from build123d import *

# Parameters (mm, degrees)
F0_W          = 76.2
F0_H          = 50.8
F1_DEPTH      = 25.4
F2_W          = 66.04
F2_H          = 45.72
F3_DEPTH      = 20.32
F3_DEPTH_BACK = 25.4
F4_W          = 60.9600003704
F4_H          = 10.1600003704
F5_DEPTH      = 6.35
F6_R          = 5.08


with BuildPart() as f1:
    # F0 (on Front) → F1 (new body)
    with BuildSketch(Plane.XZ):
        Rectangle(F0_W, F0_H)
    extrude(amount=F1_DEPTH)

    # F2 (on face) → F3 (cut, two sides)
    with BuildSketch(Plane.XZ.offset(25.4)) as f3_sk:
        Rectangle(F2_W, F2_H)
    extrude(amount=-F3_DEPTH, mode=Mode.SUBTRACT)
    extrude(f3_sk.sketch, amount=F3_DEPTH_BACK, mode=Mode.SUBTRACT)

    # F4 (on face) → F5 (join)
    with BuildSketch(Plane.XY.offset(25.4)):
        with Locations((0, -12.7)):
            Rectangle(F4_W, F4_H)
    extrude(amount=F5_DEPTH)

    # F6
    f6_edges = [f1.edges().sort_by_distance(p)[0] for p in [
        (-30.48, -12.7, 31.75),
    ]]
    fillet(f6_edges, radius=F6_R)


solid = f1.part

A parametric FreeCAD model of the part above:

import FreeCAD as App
import Part
import Sketcher

V = App.Vector
Q = App.Units.Quantity


def edges_at(feature, points):
    """Names of the edges that pass closest to the given points."""
    edges = feature.Shape.Edges
    near = lambda p: min(range(len(edges)), key=lambda i: edges[i].distToShape(Part.Vertex(*p))[0])
    return sorted({f"Edge{near(p) + 1}" for p in points})


def add_polygon(sketch, points):
    """Adds a closed chain of lines whose ends are joined by coincident constraints."""
    first, n = sketch.GeometryCount, len(points)
    for a, b in zip(points, points[1:] + points[:1]):
        sketch.addGeometry(Part.LineSegment(App.Vector(*a, 0), App.Vector(*b, 0)), False)
    for i in range(n):
        sketch.addConstraint(Sketcher.Constraint("Coincident", first + i, 2, first + (i + 1) % n, 1))

doc = App.newDocument("Part")
params = doc.addObject("Spreadsheet::Sheet", "Params")
for row, (alias, value) in enumerate([
    ("sketch1_width", "3 in"),
    ("sketch1_height", "2 in"),
    ("pad1_length", "1 in"),
    ("sketch2_width", "2.6 in"),
    ("sketch2_height", "1.8 in"),
    ("pocket1_length", "0.8 in"),
    ("pocket1_length2", "1 in"),
    ("sketch3_width", "2.4 in"),
    ("sketch3_height", "0.4 in"),
    ("pad2_length", "0.25 in"),
    ("fillet_radius", "0.2 in"),
], start=1):
    params.set(f"A{row}", alias)
    params.set(f"B{row}", "=" + value)
    params.setAlias(f"B{row}", alias)

body = doc.addObject("PartDesign::Body", "Body")

# Sketch on XZ plane
sketch1 = body.newObject("Sketcher::SketchObject", "Sketch")
sketch1.AttachmentSupport = (doc.getObject("XZ_Plane"), [""])
sketch1.MapMode = "FlatFace"
add_polygon(sketch1, [(-38, 25), (-38, -25), (38, -25), (38, 25)])  # lines 0-3
sketch1.addConstraint([
    Sketcher.Constraint("Vertical", 0),
    Sketcher.Constraint("Horizontal", 1),
    Sketcher.Constraint("Vertical", 2),
    Sketcher.Constraint("Horizontal", 3),
    Sketcher.Constraint("Symmetric", 0, 2, 2, 2, -1, 1),
    Sketcher.Constraint("DistanceX", 1, 1, 1, 2, Q("3 in")),
    Sketcher.Constraint("DistanceY", 0, 2, 0, 1, Q("2 in")),
])
sketch1.setExpression("Constraints[9]", "Params.sketch1_width")
sketch1.setExpression("Constraints[10]", "Params.sketch1_height")
pad1 = body.newObject("PartDesign::Pad", "Pad")
pad1.Profile = sketch1
pad1.setExpression("Length", "Params.pad1_length")

# Sketch on XZ plane
sketch2 = body.newObject("Sketcher::SketchObject", "Sketch001")
sketch2.AttachmentSupport = (doc.getObject("XZ_Plane"), [""])
sketch2.MapMode = "FlatFace"
sketch2.AttachmentOffset = App.Placement(V(0, 0, 1 * 25.4), App.Rotation())
add_polygon(sketch2, [(-33, 23), (-33, -23), (33, -23), (33, 23)])  # lines 0-3
sketch2.addConstraint([
    Sketcher.Constraint("Vertical", 0),
    Sketcher.Constraint("Horizontal", 1),
    Sketcher.Constraint("Vertical", 2),
    Sketcher.Constraint("Horizontal", 3),
    Sketcher.Constraint("Symmetric", 0, 2, 2, 2, -1, 1),
    Sketcher.Constraint("DistanceX", 1, 1, 1, 2, Q("2.6 in")),
    Sketcher.Constraint("DistanceY", 0, 2, 0, 1, Q("1.8 in")),
])
sketch2.setExpression("Constraints[9]", "Params.sketch2_width")
sketch2.setExpression("Constraints[10]", "Params.sketch2_height")
pocket1 = body.newObject("PartDesign::Pocket", "Pocket")
pocket1.Profile = sketch2
pocket1.Type = "TwoLengths"
pocket1.setExpression("Length", "Params.pocket1_length")
pocket1.setExpression("Length2", "Params.pocket1_length2")

# Sketch on XY plane
sketch3 = body.newObject("Sketcher::SketchObject", "Sketch002")
sketch3.AttachmentSupport = (doc.getObject("XY_Plane"), [""])
sketch3.MapMode = "FlatFace"
sketch3.AttachmentOffset = App.Placement(V(0, 0, 1 * 25.4), App.Rotation())
add_polygon(sketch3, [(-30, -8), (-30, -18), (30, -18), (30, -8)])  # lines 0-3
sketch3.addConstraint([
    Sketcher.Constraint("Vertical", 0),
    Sketcher.Constraint("Horizontal", 1),
    Sketcher.Constraint("Vertical", 2),
    Sketcher.Constraint("Horizontal", 3),
    Sketcher.Constraint("DistanceX", 1, 1, 1, 2, Q("2.4 in")),
    Sketcher.Constraint("DistanceY", 0, 2, 0, 1, Q("0.4 in")),
    Sketcher.Constraint("DistanceX", 0, 2, -1, 1, Q("1.2 in")),
    Sketcher.Constraint("DistanceY", 0, 2, -1, 1, Q("0.7 in")),
])
sketch3.setExpression("Constraints[8]", "Params.sketch3_width")
sketch3.setExpression("Constraints[9]", "Params.sketch3_height")
pad2 = body.newObject("PartDesign::Pad", "Pad001")
pad2.Profile = sketch3
pad2.setExpression("Length", "Params.pad2_length")
doc.recompute()

fillet = body.newObject("PartDesign::Fillet", "Fillet")
fillet.Base = (pad2, edges_at(pad2, [(-30.48, -12.7, 31.75)]))
fillet.setExpression("Radius", "Params.fillet_radius")

doc.recompute()
